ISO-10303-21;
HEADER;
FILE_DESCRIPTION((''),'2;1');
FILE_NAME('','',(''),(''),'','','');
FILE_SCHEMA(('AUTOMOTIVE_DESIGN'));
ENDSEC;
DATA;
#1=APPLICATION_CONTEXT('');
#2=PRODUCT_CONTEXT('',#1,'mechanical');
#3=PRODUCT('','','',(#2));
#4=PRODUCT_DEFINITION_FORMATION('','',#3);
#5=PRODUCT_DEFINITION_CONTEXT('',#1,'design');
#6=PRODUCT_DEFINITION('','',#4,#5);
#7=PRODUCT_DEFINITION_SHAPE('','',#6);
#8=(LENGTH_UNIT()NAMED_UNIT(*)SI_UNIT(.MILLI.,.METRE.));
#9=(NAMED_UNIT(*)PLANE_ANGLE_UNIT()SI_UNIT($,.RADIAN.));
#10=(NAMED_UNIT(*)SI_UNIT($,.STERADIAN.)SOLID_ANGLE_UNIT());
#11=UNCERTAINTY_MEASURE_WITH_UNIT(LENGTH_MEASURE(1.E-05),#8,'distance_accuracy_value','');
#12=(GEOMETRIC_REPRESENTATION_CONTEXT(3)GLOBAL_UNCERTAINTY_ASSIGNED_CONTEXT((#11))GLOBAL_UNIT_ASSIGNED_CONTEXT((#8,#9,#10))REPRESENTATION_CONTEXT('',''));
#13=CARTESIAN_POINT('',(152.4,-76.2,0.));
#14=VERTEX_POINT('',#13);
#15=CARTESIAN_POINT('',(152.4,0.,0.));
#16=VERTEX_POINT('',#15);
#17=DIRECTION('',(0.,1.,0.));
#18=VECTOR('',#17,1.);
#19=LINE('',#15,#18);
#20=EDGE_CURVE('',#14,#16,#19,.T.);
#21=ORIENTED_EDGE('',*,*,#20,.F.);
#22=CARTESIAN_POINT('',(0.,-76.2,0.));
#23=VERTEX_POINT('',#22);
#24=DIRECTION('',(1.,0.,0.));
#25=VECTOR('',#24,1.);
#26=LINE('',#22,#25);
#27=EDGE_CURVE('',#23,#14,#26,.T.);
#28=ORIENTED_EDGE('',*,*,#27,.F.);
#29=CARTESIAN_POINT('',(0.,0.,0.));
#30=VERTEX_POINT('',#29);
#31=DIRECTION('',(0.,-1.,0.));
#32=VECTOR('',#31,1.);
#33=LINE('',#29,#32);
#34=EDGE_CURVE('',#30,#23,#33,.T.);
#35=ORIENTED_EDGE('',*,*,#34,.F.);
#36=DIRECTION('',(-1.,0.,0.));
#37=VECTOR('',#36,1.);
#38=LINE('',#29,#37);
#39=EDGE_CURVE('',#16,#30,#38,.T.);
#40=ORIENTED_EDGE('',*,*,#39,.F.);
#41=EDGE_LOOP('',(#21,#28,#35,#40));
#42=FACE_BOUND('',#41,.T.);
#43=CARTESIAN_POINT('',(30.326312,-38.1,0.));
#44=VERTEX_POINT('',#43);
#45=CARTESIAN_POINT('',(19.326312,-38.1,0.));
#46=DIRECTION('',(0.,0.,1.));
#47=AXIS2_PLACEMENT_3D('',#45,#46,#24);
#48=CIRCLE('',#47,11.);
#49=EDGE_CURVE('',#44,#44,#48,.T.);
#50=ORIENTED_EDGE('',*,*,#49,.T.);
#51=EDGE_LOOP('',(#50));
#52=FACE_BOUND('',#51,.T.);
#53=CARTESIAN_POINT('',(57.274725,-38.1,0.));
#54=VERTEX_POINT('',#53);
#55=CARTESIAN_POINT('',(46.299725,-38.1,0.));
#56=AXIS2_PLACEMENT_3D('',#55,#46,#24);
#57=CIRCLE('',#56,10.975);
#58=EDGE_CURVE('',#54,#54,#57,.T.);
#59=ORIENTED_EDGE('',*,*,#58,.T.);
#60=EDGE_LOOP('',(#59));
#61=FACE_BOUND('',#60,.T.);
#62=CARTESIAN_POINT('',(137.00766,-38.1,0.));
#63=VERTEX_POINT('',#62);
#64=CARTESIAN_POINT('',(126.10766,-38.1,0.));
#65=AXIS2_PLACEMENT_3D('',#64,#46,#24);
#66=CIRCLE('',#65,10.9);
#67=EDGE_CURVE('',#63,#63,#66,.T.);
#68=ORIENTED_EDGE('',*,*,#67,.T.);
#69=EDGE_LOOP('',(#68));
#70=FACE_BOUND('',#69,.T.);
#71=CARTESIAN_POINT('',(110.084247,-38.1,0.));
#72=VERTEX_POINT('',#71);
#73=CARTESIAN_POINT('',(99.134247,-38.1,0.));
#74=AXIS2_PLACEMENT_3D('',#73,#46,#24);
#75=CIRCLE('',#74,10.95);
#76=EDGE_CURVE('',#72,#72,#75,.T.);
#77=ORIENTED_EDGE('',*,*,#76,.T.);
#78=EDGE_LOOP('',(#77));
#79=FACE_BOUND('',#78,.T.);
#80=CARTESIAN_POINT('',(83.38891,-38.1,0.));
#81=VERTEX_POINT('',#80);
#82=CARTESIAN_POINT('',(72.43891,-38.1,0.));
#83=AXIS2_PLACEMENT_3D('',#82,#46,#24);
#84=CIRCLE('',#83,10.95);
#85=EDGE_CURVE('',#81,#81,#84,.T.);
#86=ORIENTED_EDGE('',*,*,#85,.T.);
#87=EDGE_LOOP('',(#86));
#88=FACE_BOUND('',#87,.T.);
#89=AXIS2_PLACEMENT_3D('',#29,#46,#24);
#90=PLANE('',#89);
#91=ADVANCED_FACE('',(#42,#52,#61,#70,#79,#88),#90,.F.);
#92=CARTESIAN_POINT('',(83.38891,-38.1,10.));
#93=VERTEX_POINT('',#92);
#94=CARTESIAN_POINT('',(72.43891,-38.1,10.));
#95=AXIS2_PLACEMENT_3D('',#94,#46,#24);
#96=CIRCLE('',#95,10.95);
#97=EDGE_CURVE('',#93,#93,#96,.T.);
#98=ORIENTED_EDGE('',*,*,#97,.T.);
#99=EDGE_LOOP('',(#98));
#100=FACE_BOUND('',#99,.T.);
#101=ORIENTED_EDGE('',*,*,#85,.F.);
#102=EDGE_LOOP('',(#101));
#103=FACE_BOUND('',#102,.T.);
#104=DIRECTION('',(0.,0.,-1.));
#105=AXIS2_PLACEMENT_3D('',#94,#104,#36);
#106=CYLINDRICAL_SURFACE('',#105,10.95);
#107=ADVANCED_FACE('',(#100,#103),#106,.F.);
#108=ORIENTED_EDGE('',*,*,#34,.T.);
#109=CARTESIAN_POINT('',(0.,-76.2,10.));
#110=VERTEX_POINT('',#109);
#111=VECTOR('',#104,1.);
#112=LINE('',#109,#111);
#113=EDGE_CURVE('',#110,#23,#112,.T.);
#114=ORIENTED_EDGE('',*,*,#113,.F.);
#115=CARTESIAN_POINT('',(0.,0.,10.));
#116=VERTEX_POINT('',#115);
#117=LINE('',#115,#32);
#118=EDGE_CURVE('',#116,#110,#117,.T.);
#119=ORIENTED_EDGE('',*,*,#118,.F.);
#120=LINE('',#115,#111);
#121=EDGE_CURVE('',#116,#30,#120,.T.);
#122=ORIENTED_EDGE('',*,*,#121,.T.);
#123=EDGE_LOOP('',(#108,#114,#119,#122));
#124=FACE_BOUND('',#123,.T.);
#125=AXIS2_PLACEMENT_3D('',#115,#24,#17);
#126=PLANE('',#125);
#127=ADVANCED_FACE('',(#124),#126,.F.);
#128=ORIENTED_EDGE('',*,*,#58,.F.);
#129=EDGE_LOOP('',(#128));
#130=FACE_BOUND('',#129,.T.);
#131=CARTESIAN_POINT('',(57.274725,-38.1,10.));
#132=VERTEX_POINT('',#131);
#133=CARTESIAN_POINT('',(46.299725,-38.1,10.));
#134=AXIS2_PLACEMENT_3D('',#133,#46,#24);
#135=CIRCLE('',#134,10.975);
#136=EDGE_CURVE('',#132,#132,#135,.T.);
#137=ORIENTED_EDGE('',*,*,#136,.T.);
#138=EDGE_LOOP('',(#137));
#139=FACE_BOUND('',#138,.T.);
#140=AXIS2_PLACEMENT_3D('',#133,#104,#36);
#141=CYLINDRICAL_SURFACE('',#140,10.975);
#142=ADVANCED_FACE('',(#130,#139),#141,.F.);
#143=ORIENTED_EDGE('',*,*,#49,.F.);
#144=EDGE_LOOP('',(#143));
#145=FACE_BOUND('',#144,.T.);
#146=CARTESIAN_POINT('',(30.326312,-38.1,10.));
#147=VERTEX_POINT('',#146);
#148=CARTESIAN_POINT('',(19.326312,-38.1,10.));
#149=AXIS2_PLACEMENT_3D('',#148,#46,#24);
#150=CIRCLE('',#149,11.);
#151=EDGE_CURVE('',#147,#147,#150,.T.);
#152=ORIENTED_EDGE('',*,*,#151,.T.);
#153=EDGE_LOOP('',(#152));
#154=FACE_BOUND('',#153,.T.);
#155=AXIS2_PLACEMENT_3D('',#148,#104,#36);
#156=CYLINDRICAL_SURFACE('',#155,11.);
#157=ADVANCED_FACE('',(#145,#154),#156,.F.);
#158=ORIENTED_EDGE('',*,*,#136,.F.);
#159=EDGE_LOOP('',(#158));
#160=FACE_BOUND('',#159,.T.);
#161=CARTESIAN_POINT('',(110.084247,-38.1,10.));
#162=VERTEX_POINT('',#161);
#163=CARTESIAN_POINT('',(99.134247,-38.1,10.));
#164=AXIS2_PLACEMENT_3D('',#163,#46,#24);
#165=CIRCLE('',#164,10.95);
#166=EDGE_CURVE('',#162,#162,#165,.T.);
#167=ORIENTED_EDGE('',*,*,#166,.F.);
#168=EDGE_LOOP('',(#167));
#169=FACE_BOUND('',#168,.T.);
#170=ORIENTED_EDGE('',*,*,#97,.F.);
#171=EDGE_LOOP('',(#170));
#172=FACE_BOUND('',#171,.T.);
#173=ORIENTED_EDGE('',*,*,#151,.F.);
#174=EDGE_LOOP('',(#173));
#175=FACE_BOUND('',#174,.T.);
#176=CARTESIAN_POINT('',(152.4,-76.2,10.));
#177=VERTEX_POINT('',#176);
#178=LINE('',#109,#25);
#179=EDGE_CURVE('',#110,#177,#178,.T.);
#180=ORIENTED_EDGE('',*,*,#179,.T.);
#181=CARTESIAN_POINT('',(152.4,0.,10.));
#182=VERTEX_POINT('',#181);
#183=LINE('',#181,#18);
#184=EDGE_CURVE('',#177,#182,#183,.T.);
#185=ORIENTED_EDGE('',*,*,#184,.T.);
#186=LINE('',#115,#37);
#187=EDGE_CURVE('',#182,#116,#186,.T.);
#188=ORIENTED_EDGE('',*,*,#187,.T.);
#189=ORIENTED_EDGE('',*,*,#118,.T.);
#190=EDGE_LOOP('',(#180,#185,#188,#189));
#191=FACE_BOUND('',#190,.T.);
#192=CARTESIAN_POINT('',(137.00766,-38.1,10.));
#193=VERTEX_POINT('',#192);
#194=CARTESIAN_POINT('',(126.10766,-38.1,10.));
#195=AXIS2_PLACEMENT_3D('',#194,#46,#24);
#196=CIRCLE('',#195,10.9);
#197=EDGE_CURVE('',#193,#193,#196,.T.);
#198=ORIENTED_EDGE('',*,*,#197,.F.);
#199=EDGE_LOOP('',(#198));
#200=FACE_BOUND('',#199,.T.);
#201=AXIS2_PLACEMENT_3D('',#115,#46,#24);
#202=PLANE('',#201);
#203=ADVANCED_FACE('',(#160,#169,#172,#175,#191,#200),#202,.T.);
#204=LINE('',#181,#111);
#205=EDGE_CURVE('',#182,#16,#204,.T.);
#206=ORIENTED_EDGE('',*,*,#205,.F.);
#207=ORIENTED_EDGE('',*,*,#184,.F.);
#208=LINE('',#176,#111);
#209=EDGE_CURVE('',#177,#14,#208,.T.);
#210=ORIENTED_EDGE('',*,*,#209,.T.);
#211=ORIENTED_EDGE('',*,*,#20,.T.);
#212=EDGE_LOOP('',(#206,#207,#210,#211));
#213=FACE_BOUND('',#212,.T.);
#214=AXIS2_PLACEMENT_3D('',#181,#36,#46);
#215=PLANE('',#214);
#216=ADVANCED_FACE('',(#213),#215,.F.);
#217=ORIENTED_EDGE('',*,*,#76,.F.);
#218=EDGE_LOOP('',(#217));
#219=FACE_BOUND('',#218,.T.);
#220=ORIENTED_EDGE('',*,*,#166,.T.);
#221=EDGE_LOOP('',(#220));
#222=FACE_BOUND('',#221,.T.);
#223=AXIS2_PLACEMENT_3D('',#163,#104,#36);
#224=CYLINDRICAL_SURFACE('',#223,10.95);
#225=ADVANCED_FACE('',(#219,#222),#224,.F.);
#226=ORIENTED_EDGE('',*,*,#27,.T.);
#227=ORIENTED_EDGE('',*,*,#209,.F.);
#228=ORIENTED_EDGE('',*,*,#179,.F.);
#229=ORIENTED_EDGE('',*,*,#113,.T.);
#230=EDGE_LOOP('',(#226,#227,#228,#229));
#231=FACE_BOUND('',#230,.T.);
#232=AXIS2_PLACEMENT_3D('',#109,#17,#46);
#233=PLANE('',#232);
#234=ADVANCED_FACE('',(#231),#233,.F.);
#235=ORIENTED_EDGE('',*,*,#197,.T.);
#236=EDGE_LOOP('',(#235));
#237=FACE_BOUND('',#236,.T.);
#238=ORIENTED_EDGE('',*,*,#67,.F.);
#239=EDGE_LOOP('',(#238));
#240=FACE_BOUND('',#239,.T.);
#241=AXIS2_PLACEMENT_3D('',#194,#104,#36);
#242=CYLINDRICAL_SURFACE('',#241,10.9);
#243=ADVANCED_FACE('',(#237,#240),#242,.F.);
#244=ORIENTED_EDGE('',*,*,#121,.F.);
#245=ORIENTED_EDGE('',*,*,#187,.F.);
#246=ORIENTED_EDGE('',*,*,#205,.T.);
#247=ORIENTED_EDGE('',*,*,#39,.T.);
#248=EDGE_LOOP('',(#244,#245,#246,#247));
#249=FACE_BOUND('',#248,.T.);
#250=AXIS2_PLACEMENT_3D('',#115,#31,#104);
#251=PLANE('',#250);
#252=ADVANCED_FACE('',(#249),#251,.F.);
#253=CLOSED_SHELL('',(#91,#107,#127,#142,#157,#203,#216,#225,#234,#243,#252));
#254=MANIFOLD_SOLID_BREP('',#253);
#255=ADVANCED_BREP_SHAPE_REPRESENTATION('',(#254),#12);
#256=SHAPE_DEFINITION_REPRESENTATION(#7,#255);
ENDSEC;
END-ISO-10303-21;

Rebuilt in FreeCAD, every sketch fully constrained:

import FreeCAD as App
import Part
import Sketcher

V = App.Vector
Q = App.Units.Quantity

doc = App.newDocument("Part")
params = doc.addObject("Spreadsheet::Sheet", "Params")
for row, (alias, value) in enumerate([
    ("sketch1_diameter", "22 mm"),
    ("sketch1_diameter2", "21.9 mm"),
    ("sketch1_diameter3", "21.8 mm"),
    ("sketch1_diameter4", "21.95 mm"),
    ("sketch1_width", "152.4 mm"),
    ("pad1_length", "10 mm"),
], start=1):
    params.set(f"A{row}", alias)
    params.set(f"B{row}", "=" + value)
    params.setAlias(f"B{row}", alias)

body = doc.addObject("PartDesign::Body", "Body")

sketch1 = body.newObject("Sketcher::SketchObject", "Sketch")
sketch1.AttachmentSupport = (doc.getObject("XY_Plane"), [""])
sketch1.MapMode = "FlatFace"
sketch1.addGeometry([
    Part.LineSegment(V(0, 0, 0), V(0, -76, 0)),
    Part.LineSegment(V(0, -76, 0), V(152, -76, 0)),
    Part.LineSegment(V(152, -76, 0), V(152, 0, 0)),
    Part.LineSegment(V(152, 0, 0), V(0, 0, 0)),
    Part.Circle(V(19, -38, 0), V(0, 0, 1), 11),
    Part.Circle(V(46, -38, 0), V(0, 0, 1), 11),
    Part.Circle(V(72, -38, 0), V(0, 0, 1), 11),
    Part.Circle(V(99, -38, 0), V(0, 0, 1), 11),
    Part.Circle(V(126, -38, 0), V(0, 0, 1), 11),
], False)
sketch1.addConstraint([
    Sketcher.Constraint("Coincident", 0, 2, 1, 1),
    Sketcher.Constraint("Coincident", 1, 2, 2, 1),
    Sketcher.Constraint("Coincident", 2, 2, 3, 1),
    Sketcher.Constraint("Coincident", 3, 2, 0, 1),
    Sketcher.Constraint("Vertical", 0),
    Sketcher.Constraint("Horizontal", 1),
    Sketcher.Constraint("Vertical", 2),
    Sketcher.Constraint("Horizontal", 3),
    Sketcher.Constraint("Coincident", 3, 2, -1, 1),
    Sketcher.Constraint("Equal", 6, 7),
    Sketcher.Constraint("Horizontal", 4, 3, 5, 3),
    Sketcher.Constraint("Horizontal", 5, 3, 6, 3),
    Sketcher.Constraint("Horizontal", 6, 3, 7, 3),
    Sketcher.Constraint("Horizontal", 7, 3, 8, 3),
    Sketcher.Constraint("Diameter", 4, Q("22 mm")),
    Sketcher.Constraint("Diameter", 6, Q("21.9 mm")),
    Sketcher.Constraint("Diameter", 8, Q("21.8 mm")),
    Sketcher.Constraint("Diameter", 5, Q("21.95 mm")),
    Sketcher.Constraint("DistanceX", 1, 1, 1, 2, Q("152.4 mm")),
    Sketcher.Constraint("DistanceY", 0, 2, 0, 1, Q("76.2 mm")),
    Sketcher.Constraint("DistanceY", 4, 3, -1, 1, Q("38.1 mm")),
    Sketcher.Constraint("DistanceX", -1, 1, 4, 3, Q("19.326312 mm")),
    Sketcher.Constraint("DistanceX", -1, 1, 6, 3, Q("72.43891 mm")),
    Sketcher.Constraint("DistanceX", -1, 1, 8, 3, Q("126.10766 mm")),
    Sketcher.Constraint("DistanceX", 5, 3, 7, 3, Q("52.834521 mm")),
    Sketcher.Constraint("DistanceX", -1, 1, 5, 3, Q("46.299725 mm")),
])
sketch1.setExpression("Constraints[14]", "Params.sketch1_diameter")
sketch1.setExpression("Constraints[15]", "Params.sketch1_diameter2")
sketch1.setExpression("Constraints[16]", "Params.sketch1_diameter3")
sketch1.setExpression("Constraints[17]", "Params.sketch1_diameter4")
sketch1.setExpression("Constraints[18]", "Params.sketch1_width")
pad1 = body.newObject("PartDesign::Pad", "Pad")
pad1.Profile = sketch1
pad1.setExpression("Length", "Params.pad1_length")

doc.recompute()
